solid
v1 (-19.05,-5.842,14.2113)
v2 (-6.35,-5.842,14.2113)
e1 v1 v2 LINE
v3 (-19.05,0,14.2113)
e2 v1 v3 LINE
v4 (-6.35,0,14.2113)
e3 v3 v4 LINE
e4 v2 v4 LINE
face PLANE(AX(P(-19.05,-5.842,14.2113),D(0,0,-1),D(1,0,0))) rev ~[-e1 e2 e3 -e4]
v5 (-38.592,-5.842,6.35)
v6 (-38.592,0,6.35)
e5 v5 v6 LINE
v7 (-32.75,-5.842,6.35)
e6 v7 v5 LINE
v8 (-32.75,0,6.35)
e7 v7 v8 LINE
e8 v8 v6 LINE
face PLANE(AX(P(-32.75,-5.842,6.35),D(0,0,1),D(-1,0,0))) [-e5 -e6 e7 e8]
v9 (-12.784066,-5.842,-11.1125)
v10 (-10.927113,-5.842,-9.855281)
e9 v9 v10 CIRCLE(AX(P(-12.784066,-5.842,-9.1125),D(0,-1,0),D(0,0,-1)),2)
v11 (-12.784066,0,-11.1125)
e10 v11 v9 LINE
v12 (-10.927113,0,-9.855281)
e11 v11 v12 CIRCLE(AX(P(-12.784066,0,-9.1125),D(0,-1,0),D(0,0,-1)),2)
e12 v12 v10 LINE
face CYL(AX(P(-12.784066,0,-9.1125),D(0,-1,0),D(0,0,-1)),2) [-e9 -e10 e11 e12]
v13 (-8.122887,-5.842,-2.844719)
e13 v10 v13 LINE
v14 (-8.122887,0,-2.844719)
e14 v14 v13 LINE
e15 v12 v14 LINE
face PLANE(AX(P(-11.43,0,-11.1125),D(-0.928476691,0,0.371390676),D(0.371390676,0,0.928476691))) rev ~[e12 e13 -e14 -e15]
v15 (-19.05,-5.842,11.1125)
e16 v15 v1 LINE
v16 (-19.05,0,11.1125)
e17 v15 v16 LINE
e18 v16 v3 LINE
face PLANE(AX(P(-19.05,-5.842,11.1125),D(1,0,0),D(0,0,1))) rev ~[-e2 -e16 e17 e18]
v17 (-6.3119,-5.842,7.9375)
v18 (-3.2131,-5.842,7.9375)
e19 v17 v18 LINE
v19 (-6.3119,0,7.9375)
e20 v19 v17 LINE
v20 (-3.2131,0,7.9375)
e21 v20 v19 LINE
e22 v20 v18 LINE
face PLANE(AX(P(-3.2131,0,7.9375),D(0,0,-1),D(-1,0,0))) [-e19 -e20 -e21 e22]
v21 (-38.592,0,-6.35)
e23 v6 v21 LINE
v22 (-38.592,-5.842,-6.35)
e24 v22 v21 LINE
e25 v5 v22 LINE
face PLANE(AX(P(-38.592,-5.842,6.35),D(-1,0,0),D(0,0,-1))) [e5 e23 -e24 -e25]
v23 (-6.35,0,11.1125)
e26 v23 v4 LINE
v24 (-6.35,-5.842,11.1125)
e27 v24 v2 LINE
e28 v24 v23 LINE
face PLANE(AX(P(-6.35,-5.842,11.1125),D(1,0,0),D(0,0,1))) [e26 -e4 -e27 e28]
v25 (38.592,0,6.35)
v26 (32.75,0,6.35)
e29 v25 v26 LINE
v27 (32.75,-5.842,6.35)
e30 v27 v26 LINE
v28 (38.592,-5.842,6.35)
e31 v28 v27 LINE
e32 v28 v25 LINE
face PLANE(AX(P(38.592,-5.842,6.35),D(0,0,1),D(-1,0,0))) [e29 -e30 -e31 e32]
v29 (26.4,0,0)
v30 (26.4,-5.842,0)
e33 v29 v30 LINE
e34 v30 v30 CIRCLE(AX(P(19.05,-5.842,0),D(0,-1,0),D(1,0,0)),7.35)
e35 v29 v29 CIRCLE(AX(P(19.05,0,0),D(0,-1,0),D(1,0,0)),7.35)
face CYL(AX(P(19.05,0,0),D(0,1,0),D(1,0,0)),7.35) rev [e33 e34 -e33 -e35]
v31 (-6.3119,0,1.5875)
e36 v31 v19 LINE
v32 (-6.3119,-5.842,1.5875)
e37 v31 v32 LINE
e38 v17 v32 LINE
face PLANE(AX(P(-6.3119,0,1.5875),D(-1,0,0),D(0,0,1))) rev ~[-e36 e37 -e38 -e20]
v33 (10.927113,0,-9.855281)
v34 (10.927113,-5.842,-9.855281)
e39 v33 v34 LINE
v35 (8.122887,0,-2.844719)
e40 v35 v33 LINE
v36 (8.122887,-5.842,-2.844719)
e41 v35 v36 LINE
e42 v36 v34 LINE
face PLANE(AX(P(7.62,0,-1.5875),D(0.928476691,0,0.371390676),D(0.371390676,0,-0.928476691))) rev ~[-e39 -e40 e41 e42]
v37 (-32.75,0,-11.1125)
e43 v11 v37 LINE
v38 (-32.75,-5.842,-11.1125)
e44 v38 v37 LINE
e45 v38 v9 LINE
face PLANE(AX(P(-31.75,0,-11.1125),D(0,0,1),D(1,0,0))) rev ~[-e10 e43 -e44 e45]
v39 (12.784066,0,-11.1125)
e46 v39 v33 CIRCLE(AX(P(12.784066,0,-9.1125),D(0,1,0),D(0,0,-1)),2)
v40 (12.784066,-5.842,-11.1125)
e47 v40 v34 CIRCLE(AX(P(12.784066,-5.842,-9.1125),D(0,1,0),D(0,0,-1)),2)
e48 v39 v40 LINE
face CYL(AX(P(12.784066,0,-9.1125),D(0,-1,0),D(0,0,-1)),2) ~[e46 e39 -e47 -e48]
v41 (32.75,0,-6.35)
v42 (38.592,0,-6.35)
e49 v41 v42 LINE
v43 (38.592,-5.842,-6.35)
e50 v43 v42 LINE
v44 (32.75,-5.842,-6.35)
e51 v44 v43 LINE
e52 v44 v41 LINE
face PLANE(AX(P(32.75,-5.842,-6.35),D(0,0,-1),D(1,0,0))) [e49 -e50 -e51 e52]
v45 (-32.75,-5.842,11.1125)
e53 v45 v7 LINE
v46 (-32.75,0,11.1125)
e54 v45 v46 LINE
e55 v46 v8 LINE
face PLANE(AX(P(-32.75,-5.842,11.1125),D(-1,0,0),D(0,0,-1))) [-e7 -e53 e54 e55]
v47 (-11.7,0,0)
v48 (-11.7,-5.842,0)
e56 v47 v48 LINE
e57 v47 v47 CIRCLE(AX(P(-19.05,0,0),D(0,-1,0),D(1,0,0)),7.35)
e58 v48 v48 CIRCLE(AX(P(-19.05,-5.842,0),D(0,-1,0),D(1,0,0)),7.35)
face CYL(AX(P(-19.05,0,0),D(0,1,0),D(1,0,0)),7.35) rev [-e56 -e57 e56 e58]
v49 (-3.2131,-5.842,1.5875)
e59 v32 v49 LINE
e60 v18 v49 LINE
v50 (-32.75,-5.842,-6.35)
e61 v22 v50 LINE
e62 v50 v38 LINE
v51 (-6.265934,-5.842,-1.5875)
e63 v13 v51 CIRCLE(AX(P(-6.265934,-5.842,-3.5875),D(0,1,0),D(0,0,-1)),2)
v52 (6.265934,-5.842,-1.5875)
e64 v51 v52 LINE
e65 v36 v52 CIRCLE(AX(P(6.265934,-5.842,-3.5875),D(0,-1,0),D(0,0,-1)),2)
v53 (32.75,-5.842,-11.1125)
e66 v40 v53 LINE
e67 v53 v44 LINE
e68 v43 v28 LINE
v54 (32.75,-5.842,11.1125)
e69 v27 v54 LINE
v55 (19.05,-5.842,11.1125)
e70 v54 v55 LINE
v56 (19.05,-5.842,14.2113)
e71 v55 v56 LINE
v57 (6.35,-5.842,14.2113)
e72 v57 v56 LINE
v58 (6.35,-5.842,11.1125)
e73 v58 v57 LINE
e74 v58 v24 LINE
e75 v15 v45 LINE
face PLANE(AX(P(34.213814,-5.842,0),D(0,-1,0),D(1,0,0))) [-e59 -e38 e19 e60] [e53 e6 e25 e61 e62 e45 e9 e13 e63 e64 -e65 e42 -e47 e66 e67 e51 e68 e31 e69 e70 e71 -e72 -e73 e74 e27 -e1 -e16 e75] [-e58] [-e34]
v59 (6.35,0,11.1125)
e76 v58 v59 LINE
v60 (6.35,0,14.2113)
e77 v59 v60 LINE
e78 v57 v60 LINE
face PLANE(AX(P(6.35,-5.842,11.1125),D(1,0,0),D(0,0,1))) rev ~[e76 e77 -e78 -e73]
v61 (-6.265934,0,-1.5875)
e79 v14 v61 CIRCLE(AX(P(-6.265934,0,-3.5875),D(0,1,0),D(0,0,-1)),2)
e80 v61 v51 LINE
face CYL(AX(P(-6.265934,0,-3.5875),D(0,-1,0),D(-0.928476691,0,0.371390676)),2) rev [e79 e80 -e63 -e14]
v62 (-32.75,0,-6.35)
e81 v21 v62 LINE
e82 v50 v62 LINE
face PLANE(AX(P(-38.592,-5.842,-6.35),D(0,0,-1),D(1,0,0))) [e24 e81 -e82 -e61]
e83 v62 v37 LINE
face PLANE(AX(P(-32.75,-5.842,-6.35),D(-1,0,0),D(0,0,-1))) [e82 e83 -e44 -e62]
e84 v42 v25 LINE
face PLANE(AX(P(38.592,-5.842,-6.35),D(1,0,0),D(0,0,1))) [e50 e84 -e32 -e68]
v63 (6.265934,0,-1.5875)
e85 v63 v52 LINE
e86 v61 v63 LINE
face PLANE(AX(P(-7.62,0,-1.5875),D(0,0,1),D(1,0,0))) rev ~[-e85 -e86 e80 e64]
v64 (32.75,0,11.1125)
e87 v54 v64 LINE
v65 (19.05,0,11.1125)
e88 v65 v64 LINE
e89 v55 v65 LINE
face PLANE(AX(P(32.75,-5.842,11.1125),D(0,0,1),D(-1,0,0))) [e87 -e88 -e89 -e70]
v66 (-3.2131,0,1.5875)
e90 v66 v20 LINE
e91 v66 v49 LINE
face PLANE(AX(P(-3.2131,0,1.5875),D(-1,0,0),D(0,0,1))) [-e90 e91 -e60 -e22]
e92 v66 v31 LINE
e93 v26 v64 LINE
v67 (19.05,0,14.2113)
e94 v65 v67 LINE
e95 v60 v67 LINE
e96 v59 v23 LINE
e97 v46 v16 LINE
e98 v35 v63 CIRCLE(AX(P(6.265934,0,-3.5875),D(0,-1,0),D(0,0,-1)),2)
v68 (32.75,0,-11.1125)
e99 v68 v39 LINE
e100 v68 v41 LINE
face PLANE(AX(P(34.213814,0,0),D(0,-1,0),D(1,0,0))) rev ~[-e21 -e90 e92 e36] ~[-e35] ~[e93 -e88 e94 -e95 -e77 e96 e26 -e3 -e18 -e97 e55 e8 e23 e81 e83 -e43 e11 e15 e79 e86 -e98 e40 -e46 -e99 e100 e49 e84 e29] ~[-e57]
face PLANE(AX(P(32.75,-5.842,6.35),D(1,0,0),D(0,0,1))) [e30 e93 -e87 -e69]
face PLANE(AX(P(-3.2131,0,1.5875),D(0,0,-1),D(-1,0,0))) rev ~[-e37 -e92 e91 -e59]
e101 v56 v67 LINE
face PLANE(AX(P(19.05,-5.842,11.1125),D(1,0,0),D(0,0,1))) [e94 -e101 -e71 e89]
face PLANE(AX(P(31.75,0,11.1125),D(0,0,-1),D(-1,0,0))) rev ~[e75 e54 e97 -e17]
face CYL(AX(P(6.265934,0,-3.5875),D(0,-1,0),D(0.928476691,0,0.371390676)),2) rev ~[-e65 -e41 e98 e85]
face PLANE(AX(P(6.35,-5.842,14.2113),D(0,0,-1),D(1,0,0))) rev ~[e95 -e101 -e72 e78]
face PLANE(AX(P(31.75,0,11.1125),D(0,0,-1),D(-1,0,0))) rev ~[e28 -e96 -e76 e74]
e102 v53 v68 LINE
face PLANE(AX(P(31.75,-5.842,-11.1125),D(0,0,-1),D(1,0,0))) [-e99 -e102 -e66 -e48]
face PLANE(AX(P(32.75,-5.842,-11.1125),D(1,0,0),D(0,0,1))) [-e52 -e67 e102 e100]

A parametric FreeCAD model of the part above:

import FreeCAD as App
import Part
import Sketcher
Q = App.Units.Quantity


def edges_at(feature, points):
    """Names of the edges that pass closest to the given points."""
    edges = feature.Shape.Edges
    near = lambda p: min(range(len(edges)), key=lambda i: edges[i].distToShape(Part.Vertex(*p))[0])
    return sorted({f"Edge{near(p) + 1}" for p in points})

doc = App.newDocument("Part")
body = doc.addObject("PartDesign::Body", "Body")

sketch1 = body.newObject("Sketcher::SketchObject", "Sketch")
sketch1.AttachmentSupport = (doc.getObject("XZ_Plane"), [""])
sketch1.MapMode = "FlatFace"
sketch1.addGeometry(Part.LineSegment(App.Vector(32, 11, 0), App.Vector(-32, 11, 0)), False)
sketch1.addGeometry(Part.LineSegment(App.Vector(-32, 11, 0), App.Vector(-32, -11, 0)), False)
sketch1.addGeometry(Part.LineSegment(App.Vector(-32, -11, 0), App.Vector(-11, -11, 0)), False)
sketch1.addGeometry(Part.LineSegment(App.Vector(-11, -11, 0), App.Vector(-8, -2, 0)), False)
sketch1.addGeometry(Part.LineSegment(App.Vector(-8, -2, 0), App.Vector(8, -2, 0)), False)
sketch1.addGeometry(Part.LineSegment(App.Vector(8, -2, 0), App.Vector(11, -11, 0)), False)
sketch1.addGeometry(Part.LineSegment(App.Vector(11, -11, 0), App.Vector(32, -11, 0)), False)
sketch1.addGeometry(Part.LineSegment(App.Vector(32, -11, 0), App.Vector(32, 11, 0)), False)
sketch1.addGeometry(Part.Circle(App.Vector(-19, 0, 0), App.Vector(0, 0, 1), 7), False)
sketch1.addGeometry(Part.Circle(App.Vector(19, 0, 0), App.Vector(0, 0, 1), 7), False)
sketch1.addConstraint(Sketcher.Constraint("Coincident", 0, 2, 1, 1))
sketch1.addConstraint(Sketcher.Constraint("Coincident", 1, 2, 2, 1))
sketch1.addConstraint(Sketcher.Constraint("Coincident", 2, 2, 3, 1))
sketch1.addConstraint(Sketcher.Constraint("Coincident", 3, 2, 4, 1))
sketch1.addConstraint(Sketcher.Constraint("Coincident", 4, 2, 5, 1))
sketch1.addConstraint(Sketcher.Constraint("Coincident", 5, 2, 6, 1))
sketch1.addConstraint(Sketcher.Constraint("Coincident", 6, 2, 7, 1))
sketch1.addConstraint(Sketcher.Constraint("Coincident", 7, 2, 0, 1))
sketch1.addConstraint(Sketcher.Constraint("Horizontal", 0))
sketch1.addConstraint(Sketcher.Constraint("Vertical", 1))
sketch1.addConstraint(Sketcher.Constraint("Horizontal", 2))
sketch1.addConstraint(Sketcher.Constraint("Horizontal", 4))
sketch1.addConstraint(Sketcher.Constraint("Horizontal", 6))
sketch1.addConstraint(Sketcher.Constraint("Vertical", 7))
sketch1.addConstraint(Sketcher.Constraint("Equal", 8, 9))
sketch1.addConstraint(Sketcher.Constraint("Symmetric", 8, 3, 9, 3, -1, 1))
sketch1.addConstraint(Sketcher.Constraint("Symmetric", 0, 2, 6, 2, -1, 1))
sketch1.addConstraint(Sketcher.Constraint("Symmetric", 2, 2, 5, 2, -2))
sketch1.addConstraint(Sketcher.Constraint("PointOnObject", 8, 3, -1))
sketch1.addConstraint(Sketcher.Constraint("Equal", 3, 5))
sketch1.addConstraint(Sketcher.Constraint("DistanceX", 0, 2, 0, 1, Q("2.5 in")))
sketch1.addConstraint(Sketcher.Constraint("DistanceX", 2, 1, 2, 2, Q("0.8 in")))
sketch1.addConstraint(Sketcher.Constraint("DistanceX", 4, 1, 4, 2, Q("0.6 in")))
sketch1.addConstraint(Sketcher.Constraint("DistanceX", 0, 2, 9, 3, Q("2 in")))
sketch1.addConstraint(Sketcher.Constraint("DistanceY", 3, 2, 0, 2, Q("0.5 in")))
sketch1.addConstraint(Sketcher.Constraint("Diameter", 8, Q("14.7 mm")))
sketch1.addConstraint(Sketcher.Constraint("DistanceY", 1, 2, 1, 1, Q("0.875 in")))
pad1 = body.newObject("PartDesign::Pad", "Pad")
pad1.Profile = sketch1
pad1.Length = Q("0.23 in")
doc.recompute()

fillet = body.newObject("PartDesign::Fillet", "Fillet")
fillet.Base = (pad1, edges_at(pad1, [
    (-11.43, -2.921, -11.113),
    (-7.62, -2.921, -1.587),
    (7.62, -2.921, -1.587),
    (11.43, -2.921, -11.113),
]))
fillet.Radius = 2

sketch2 = body.newObject("Sketcher::SketchObject", "Sketch001")
sketch2.AttachmentSupport = (doc.getObject("XZ_Plane"), [""])
sketch2.MapMode = "FlatFace"
sketch2.addGeometry(Part.LineSegment(App.Vector(-3.2, 7.9, 0), App.Vector(-3.2, 1.6, 0)), False)
sketch2.addGeometry(Part.LineSegment(App.Vector(-3.2, 1.6, 0), App.Vector(-6.3, 1.6, 0)), False)
sketch2.addGeometry(Part.LineSegment(App.Vector(-6.3, 1.6, 0), App.Vector(-6.3, 7.9, 0)), False)
sketch2.addGeometry(Part.LineSegment(App.Vector(-6.3, 7.9, 0), App.Vector(-3.2, 7.9, 0)), False)
sketch2.addConstraint(Sketcher.Constraint("Coincident", 0, 2, 1, 1))
sketch2.addConstraint(Sketcher.Constraint("Coincident", 1, 2, 2, 1))
sketch2.addConstraint(Sketcher.Constraint("Coincident", 2, 2, 3, 1))
sketch2.addConstraint(Sketcher.Constraint("Coincident", 3, 2, 0, 1))
sketch2.addConstraint(Sketcher.Constraint("Vertical", 0))
sketch2.addConstraint(Sketcher.Constraint("Horizontal", 1))
sketch2.addConstraint(Sketcher.Constraint("Vertical", 2))
sketch2.addConstraint(Sketcher.Constraint("Horizontal", 3))
sketch2.addConstraint(Sketcher.Constraint("DistanceY", 0, 2, 0, 1, Q("0.25 in")))
sketch2.addConstraint(Sketcher.Constraint("DistanceX", 1, 2, 1, 1, Q("0.122 in")))
sketch2.addConstraint(Sketcher.Constraint("DistanceY", -1, 1, 0, 2, Q("0.0625 in")))
sketch2.addConstraint(Sketcher.Constraint("DistanceX", 0, 2, -1, 1, Q("0.1265 in")))
pocket1 = body.newObject("PartDesign::Pocket", "Pocket")
pocket1.Profile = sketch2
pocket1.Length = Q("1 in")
pocket1.Reversed = True

sketch3 = body.newObject("Sketcher::SketchObject", "Sketch002")
sketch3.AttachmentSupport = (doc.getObject("XZ_Plane"), [""])
sketch3.MapMode = "FlatFace"
sketch3.AttachmentOffset = App.Placement(App.Vector(0, 0, 0.23 * 25.4), App.Rotation())
sketch3.addGeometry(Part.LineSegment(App.Vector(-19.1, 14.2, 0), App.Vector(-19.1, 11.1, 0)), False)
sketch3.addGeometry(Part.LineSegment(App.Vector(-19.1, 11.1, 0), App.Vector(-6.3, 11.1, 0)), False)
sketch3.addGeometry(Part.LineSegment(App.Vector(-6.3, 11.1, 0), App.Vector(-6.3, 14.2, 0)), False)
sketch3.addGeometry(Part.LineSegment(App.Vector(-6.3, 14.2, 0), App.Vector(-19.1, 14.2, 0)), False)
sketch3.addGeometry(Part.LineSegment(App.Vector(6.3, 14.2, 0), App.Vector(6.3, 11.1, 0)), False)
sketch3.addGeometry(Part.LineSegment(App.Vector(6.3, 11.1, 0), App.Vector(19.1, 11.1, 0)), False)
sketch3.addGeometry(Part.LineSegment(App.Vector(19.1, 11.1, 0), App.Vector(19.1, 14.2, 0)), False)
sketch3.addGeometry(Part.LineSegment(App.Vector(19.1, 14.2, 0), App.Vector(6.3, 14.2, 0)), False)
sketch3.addConstraint(Sketcher.Constraint("Coincident", 0, 2, 1, 1))
sketch3.addConstraint(Sketcher.Constraint("Coincident", 1, 2, 2, 1))
sketch3.addConstraint(Sketcher.Constraint("Coincident", 2, 2, 3, 1))
sketch3.addConstraint(Sketcher.Constraint("Coincident", 3, 2, 0, 1))
sketch3.addConstraint(Sketcher.Constraint("Coincident", 4, 2, 5, 1))
sketch3.addConstraint(Sketcher.Constraint("Coincident", 5, 2, 6, 1))
sketch3.addConstraint(Sketcher.Constraint("Coincident", 6, 2, 7, 1))
sketch3.addConstraint(Sketcher.Constraint("Coincident", 7, 2, 4, 1))
sketch3.addConstraint(Sketcher.Constraint("Vertical", 0))
sketch3.addConstraint(Sketcher.Constraint("Horizontal", 1))
sketch3.addConstraint(Sketcher.Constraint("Vertical", 2))
sketch3.addConstraint(Sketcher.Constraint("Horizontal", 3))
sketch3.addConstraint(Sketcher.Constraint("Vertical", 4))
sketch3.addConstraint(Sketcher.Constraint("Horizontal", 5))
sketch3.addConstraint(Sketcher.Constraint("Vertical", 6))
sketch3.addConstraint(Sketcher.Constraint("Horizontal", 7))
sketch3.addConstraint(Sketcher.Constraint("Symmetric", 1, 2, 4, 2, -2))
sketch3.addConstraint(Sketcher.Constraint("Symmetric", 3, 2, 6, 2, -2))
sketch3.addConstraint(Sketcher.Constraint("DistanceX", 1, 1, 1, 2, Q("0.5 in")))
sketch3.addConstraint(Sketcher.Constraint("DistanceX", 0, 2, 4, 2, Q("1 in")))
sketch3.addConstraint(Sketcher.Constraint("DistanceY", 0, 2, 0, 1, Q("0.122 in")))
sketch3.addConstraint(Sketcher.Constraint("DistanceY", -1, 1, 0, 2, Q("0.4375 in")))
pad2 = body.newObject("PartDesign::Pad", "Pad001")
pad2.Profile = sketch3
pad2.Length = Q("0.23 in")
pad2.Reversed = True

sketch4 = body.newObject("Sketcher::SketchObject", "Sketch003")
sketch4.AttachmentSupport = (doc.getObject("XZ_Plane"), [""])
sketch4.MapMode = "FlatFace"
sketch4.AttachmentOffset = App.Placement(App.Vector(0, 0, 0.23 * 25.4), App.Rotation())
sketch4.addGeometry(Part.LineSegment(App.Vector(38.6, 6.3, 0), App.Vector(32.8, 6.3, 0)), False)
sketch4.addGeometry(Part.LineSegment(App.Vector(32.8, 6.3, 0), App.Vector(32.8, 11.1, 0)), False)
sketch4.addGeometry(Part.LineSegment(App.Vector(32.8, 11.1, 0), App.Vector(31.8, 11.1, 0)), False)
sketch4.addGeometry(Part.LineSegment(App.Vector(31.8, 11.1, 0), App.Vector(31.8, -11.1, 0)), False)
sketch4.addGeometry(Part.LineSegment(App.Vector(31.8, -11.1, 0), App.Vector(32.8, -11.1, 0)), False)
sketch4.addGeometry(Part.LineSegment(App.Vector(32.8, -11.1, 0), App.Vector(32.8, -6.3, 0)), False)
sketch4.addGeometry(Part.LineSegment(App.Vector(32.8, -6.3, 0), App.Vector(38.6, -6.3, 0)), False)
sketch4.addGeometry(Part.LineSegment(App.Vector(38.6, -6.3, 0), App.Vector(38.6, 6.3, 0)), False)
sketch4.addGeometry(Part.LineSegment(App.Vector(-31.8, 11.1, 0), App.Vector(-32.8, 11.1, 0)), False)
sketch4.addGeometry(Part.LineSegment(App.Vector(-32.8, 11.1, 0), App.Vector(-32.8, 6.3, 0)), False)
sketch4.addGeometry(Part.LineSegment(App.Vector(-32.8, 6.3, 0), App.Vector(-38.6, 6.3, 0)), False)
sketch4.addGeometry(Part.LineSegment(App.Vector(-38.6, 6.3, 0), App.Vector(-38.6, -6.3, 0)), False)
sketch4.addGeometry(Part.LineSegment(App.Vector(-38.6, -6.3, 0), App.Vector(-32.8, -6.3, 0)), False)
sketch4.addGeometry(Part.LineSegment(App.Vector(-32.8, -6.3, 0), App.Vector(-32.8, -11.1, 0)), False)
sketch4.addGeometry(Part.LineSegment(App.Vector(-32.8, -11.1, 0), App.Vector(-31.8, -11.1, 0)), False)
sketch4.addGeometry(Part.LineSegment(App.Vector(-31.8, -11.1, 0), App.Vector(-31.8, 11.1, 0)), False)
sketch4.addConstraint(Sketcher.Constraint("Coincident", 0, 2, 1, 1))
sketch4.addConstraint(Sketcher.Constraint("Coincident", 1, 2, 2, 1))
sketch4.addConstraint(Sketcher.Constraint("Coincident", 2, 2, 3, 1))
sketch4.addConstraint(Sketcher.Constraint("Coincident", 3, 2, 4, 1))
sketch4.addConstraint(Sketcher.Constraint("Coincident", 4, 2, 5, 1))
sketch4.addConstraint(Sketcher.Constraint("Coincident", 5, 2, 6, 1))
sketch4.addConstraint(Sketcher.Constraint("Coincident", 6, 2, 7, 1))
sketch4.addConstraint(Sketcher.Constraint("Coincident", 7, 2, 0, 1))
sketch4.addConstraint(Sketcher.Constraint("Coincident", 8, 2, 9, 1))
sketch4.addConstraint(Sketcher.Constraint("Coincident", 9, 2, 10, 1))
sketch4.addConstraint(Sketcher.Constraint("Coincident", 10, 2, 11, 1))
sketch4.addConstraint(Sketcher.Constraint("Coincident", 11, 2, 12, 1))
sketch4.addConstraint(Sketcher.Constraint("Coincident", 12, 2, 13, 1))
sketch4.addConstraint(Sketcher.Constraint("Coincident", 13, 2, 14, 1))
sketch4.addConstraint(Sketcher.Constraint("Coincident", 14, 2, 15, 1))
sketch4.addConstraint(Sketcher.Constraint("Coincident", 15, 2, 8, 1))
sketch4.addConstraint(Sketcher.Constraint("Horizontal", 0))
sketch4.addConstraint(Sketcher.Constraint("Vertical", 1))
sketch4.addConstraint(Sketcher.Constraint("Horizontal", 2))
sketch4.addConstraint(Sketcher.Constraint("Vertical", 3))
sketch4.addConstraint(Sketcher.Constraint("Horizontal", 4))
sketch4.addConstraint(Sketcher.Constraint("Vertical", 5))
sketch4.addConstraint(Sketcher.Constraint("Horizontal", 6))
sketch4.addConstraint(Sketcher.Constraint("Vertical", 7))
sketch4.addConstraint(Sketcher.Constraint("Horizontal", 8))
sketch4.addConstraint(Sketcher.Constraint("Vertical", 9))
sketch4.addConstraint(Sketcher.Constraint("Horizontal", 10))
sketch4.addConstraint(Sketcher.Constraint("Vertical", 11))
sketch4.addConstraint(Sketcher.Constraint("Horizontal", 12))
sketch4.addConstraint(Sketcher.Constraint("Vertical", 13))
sketch4.addConstraint(Sketcher.Constraint("Horizontal", 14))
sketch4.addConstraint(Sketcher.Constraint("Vertical", 15))
sketch4.addConstraint(Sketcher.Constraint("Symmetric", 4, 2, 8, 2, -1, 1))
sketch4.addConstraint(Sketcher.Constraint("Symmetric", 6, 2, 10, 2, -1, 1))
sketch4.addConstraint(Sketcher.Constraint("Symmetric", 0, 2, 12, 2, -1, 1))
sketch4.addConstraint(Sketcher.Constraint("Symmetric", 2, 2, 14, 2, -1, 1))
sketch4.addConstraint(Sketcher.Constraint("Symmetric", 1, 2, 8, 2, -2))
sketch4.addConstraint(Sketcher.Constraint("Horizontal", 7, 2, 9, 2))
sketch4.addConstraint(Sketcher.Constraint("DistanceY", 7, 1, 7, 2, Q("0.5 in")))
sketch4.addConstraint(Sketcher.Constraint("DistanceX", 0, 2, 0, 1, Q("0.23 in")))
sketch4.addConstraint(Sketcher.Constraint("DistanceY", 1, 1, 1, 2, Q("0.1875 in")))
sketch4.addConstraint(Sketcher.Constraint("DistanceX", -1, 1, 2, 2, Q("1.25 in")))
sketch4.addConstraint(Sketcher.Constraint("DistanceX", 2, 2, 2, 1, Q("1 mm")))
pad3 = body.newObject("PartDesign::Pad", "Pad002")
pad3.Profile = sketch4
pad3.Type = "UpToLast"
pad3.Reversed = True

doc.recompute()
